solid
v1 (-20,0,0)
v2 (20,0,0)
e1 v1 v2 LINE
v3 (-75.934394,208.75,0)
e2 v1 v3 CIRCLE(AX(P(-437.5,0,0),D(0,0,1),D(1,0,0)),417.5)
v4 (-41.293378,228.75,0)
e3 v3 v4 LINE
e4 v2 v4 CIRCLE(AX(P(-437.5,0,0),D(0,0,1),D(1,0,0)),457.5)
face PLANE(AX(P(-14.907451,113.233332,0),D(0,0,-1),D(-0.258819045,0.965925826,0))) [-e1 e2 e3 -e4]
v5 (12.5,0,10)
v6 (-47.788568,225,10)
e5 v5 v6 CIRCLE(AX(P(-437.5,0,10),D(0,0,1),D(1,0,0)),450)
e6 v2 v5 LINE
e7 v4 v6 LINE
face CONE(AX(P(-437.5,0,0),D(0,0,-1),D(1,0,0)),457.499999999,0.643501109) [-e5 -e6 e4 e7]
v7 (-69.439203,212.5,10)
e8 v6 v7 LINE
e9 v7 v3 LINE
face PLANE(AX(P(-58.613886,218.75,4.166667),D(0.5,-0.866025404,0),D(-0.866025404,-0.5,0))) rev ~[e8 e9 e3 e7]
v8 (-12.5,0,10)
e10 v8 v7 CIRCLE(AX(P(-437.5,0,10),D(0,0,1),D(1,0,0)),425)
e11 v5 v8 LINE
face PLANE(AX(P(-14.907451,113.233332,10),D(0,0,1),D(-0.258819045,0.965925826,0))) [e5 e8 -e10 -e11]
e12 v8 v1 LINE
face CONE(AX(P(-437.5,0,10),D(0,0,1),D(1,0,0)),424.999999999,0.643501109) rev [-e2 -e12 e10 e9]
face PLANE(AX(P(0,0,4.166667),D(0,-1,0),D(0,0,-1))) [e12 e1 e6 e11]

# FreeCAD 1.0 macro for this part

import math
import FreeCAD as App
import Part
import Sketcher

V = App.Vector
Q = App.Units.Quantity

doc = App.newDocument("Part")
body = doc.addObject("PartDesign::Body", "Body")

sketch1 = body.newObject("Sketcher::SketchObject", "Sketch")
sketch1.AttachmentSupport = (doc.getObject("XZ_Plane"), [""])
sketch1.MapMode = "FlatFace"
sketch1.addGeometry(Part.LineSegment(V(-12, 10, 0), V(-20, 0, 0)), False)
sketch1.addGeometry(Part.LineSegment(V(-20, 0, 0), V(20, 0, 0)), False)
sketch1.addGeometry(Part.LineSegment(V(20, 0, 0), V(12, 10, 0)), False)
sketch1.addGeometry(Part.LineSegment(V(12, 10, 0), V(-12, 10, 0)), False)
sketch1.addConstraint(Sketcher.Constraint("Coincident", 0, 2, 1, 1))
sketch1.addConstraint(Sketcher.Constraint("Coincident", 1, 2, 2, 1))
sketch1.addConstraint(Sketcher.Constraint("Coincident", 2, 2, 3, 1))
sketch1.addConstraint(Sketcher.Constraint("Coincident", 3, 2, 0, 1))
sketch1.addConstraint(Sketcher.Constraint("Horizontal", 1))
sketch1.addConstraint(Sketcher.Constraint("Horizontal", 3))
sketch1.addConstraint(Sketcher.Constraint("Symmetric", 0, 2, 1, 2, -1, 1))
sketch1.addConstraint(Sketcher.Constraint("Equal", 0, 2))
sketch1.addConstraint(Sketcher.Constraint("DistanceX", 1, 1, 1, 2, Q("40 mm")))
sketch1.addConstraint(Sketcher.Constraint("DistanceX", 3, 2, 3, 1, Q("25 mm")))
sketch1.addConstraint(Sketcher.Constraint("DistanceY", -1, 1, 2, 2, Q("10 mm")))

sketch2 = body.newObject("Sketcher::SketchObject", "Sketch001")
sketch2.AttachmentSupport = (doc.getObject("XY_Plane"), [""])
sketch2.MapMode = "FlatFace"
sketch2.addGeometry(Part.ArcOfCircle(Part.Circle(V(-437, 0, 0), V(0, 0, 1), 437), math.radians(0), math.radians(30)), False)
sketch2.addConstraint(Sketcher.Constraint("Coincident", 0, 1, -1, 1))
sketch2.addConstraint(Sketcher.Constraint("PointOnObject", 0, 3, -1))
sketch2.addConstraint(Sketcher.Constraint("Radius", 0, Q("437.5 mm")))
sketch2.addConstraint(Sketcher.Constraint("DistanceY", -1, 1, 0, 2, Q("218.75 mm")))
doc.recompute()

additivepipe = body.newObject("PartDesign::AdditivePipe", "AdditivePipe")
additivepipe.Profile = sketch1
additivepipe.Spine = (sketch2, ["Edge1"])

doc.recompute()
